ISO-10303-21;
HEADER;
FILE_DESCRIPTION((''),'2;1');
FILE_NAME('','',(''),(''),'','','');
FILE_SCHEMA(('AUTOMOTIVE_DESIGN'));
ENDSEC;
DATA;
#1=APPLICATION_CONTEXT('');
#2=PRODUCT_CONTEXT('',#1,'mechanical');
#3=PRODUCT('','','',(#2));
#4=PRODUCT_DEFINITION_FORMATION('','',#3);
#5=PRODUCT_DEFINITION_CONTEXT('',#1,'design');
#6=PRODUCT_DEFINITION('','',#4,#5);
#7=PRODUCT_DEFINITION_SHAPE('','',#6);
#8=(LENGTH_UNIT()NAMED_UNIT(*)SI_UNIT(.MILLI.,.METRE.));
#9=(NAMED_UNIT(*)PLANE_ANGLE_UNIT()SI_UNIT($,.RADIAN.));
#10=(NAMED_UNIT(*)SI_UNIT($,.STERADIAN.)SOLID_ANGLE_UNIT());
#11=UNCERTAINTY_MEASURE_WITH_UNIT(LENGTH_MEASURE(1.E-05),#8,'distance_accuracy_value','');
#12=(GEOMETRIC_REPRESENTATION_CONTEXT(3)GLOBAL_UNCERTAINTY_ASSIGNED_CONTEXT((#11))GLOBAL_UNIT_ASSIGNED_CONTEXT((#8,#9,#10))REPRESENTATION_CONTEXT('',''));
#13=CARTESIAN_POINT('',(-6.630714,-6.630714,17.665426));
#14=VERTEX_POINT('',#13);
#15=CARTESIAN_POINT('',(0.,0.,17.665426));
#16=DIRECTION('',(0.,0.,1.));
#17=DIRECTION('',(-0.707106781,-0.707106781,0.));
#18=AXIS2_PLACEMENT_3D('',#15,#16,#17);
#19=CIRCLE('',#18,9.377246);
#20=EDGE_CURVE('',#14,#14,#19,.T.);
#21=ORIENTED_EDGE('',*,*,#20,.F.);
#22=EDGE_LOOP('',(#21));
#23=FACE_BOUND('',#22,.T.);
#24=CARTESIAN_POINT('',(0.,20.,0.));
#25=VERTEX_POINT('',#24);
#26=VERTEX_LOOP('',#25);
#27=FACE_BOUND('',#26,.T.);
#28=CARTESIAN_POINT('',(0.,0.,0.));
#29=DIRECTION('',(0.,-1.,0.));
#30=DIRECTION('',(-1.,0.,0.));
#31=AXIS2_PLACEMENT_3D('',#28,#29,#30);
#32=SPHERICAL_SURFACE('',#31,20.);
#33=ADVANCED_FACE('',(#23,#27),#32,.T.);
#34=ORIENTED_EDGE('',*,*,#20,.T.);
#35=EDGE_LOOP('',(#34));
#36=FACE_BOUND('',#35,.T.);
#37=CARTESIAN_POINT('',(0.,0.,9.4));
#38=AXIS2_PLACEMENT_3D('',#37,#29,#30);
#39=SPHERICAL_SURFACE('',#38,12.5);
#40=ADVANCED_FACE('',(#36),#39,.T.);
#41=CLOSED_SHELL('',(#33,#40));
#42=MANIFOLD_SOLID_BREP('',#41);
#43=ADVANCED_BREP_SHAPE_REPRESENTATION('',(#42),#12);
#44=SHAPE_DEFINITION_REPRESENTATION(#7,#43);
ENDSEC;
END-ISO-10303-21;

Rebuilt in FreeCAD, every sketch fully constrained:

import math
import FreeCAD as App
import Part
import Sketcher
from FreeCAD import Vector
Q = App.Units.Quantity

doc = App.newDocument("Part")
body = doc.addObject("PartDesign::Body", "Body")

# Sketch on XY plane
sketch1 = body.newObject("Sketcher::SketchObject", "Sketch")
sketch1.AttachmentSupport = (doc.getObject("XY_Plane"), [""])
sketch1.MapMode = "FlatFace"
sketch1.addGeometry(Part.LineSegment(Vector(0, -20, 0), Vector(0, 20, 0)), False)
sketch1.addGeometry(Part.ArcOfCircle(Part.Circle(Vector(0, 0, 0), Vector(0, 0, 1), 20), math.radians(90), math.radians(270)), False)
sketch1.addConstraint(Sketcher.Constraint("Coincident", 0, 1, 1, 2))
sketch1.addConstraint(Sketcher.Constraint("Coincident", 1, 1, 0, 2))
sketch1.addConstraint(Sketcher.Constraint("Vertical", 0))
sketch1.addConstraint(Sketcher.Constraint("Coincident", 1, 3, -1, 1))
sketch1.addConstraint(Sketcher.Constraint("PointOnObject", 0, 1, -2))
sketch1.addConstraint(Sketcher.Constraint("Radius", 1, Q("20 mm")))
revolution = body.newObject("PartDesign::Revolution", "Revolution")
revolution.Profile = sketch1
revolution.ReferenceAxis = (sketch1, ["V_Axis"])
revolution.Angle = 360

# Sketch on XY plane
sketch2 = body.newObject("Sketcher::SketchObject", "Sketch001")
sketch2.AttachmentSupport = (doc.getObject("XY_Plane"), [""])
sketch2.MapMode = "FlatFace"
sketch2.AttachmentOffset = App.Placement(Vector(0, 0, 9.4), App.Rotation())
sketch2.addGeometry(Part.LineSegment(Vector(0, -12, 0), Vector(0, 12, 0)), False)
sketch2.addGeometry(Part.ArcOfCircle(Part.Circle(Vector(0, 0, 0), Vector(0, 0, 1), 12), math.radians(90), math.radians(270)), False)
sketch2.addConstraint(Sketcher.Constraint("Coincident", 0, 1, 1, 2))
sketch2.addConstraint(Sketcher.Constraint("Coincident", 1, 1, 0, 2))
sketch2.addConstraint(Sketcher.Constraint("Vertical", 0))
sketch2.addConstraint(Sketcher.Constraint("Coincident", 1, 3, -1, 1))
sketch2.addConstraint(Sketcher.Constraint("PointOnObject", 0, 1, -2))
sketch2.addConstraint(Sketcher.Constraint("Radius", 1, Q("12.5 mm")))
revolution2 = body.newObject("PartDesign::Revolution", "Revolution001")
revolution2.Profile = sketch2
revolution2.ReferenceAxis = (sketch2, ["V_Axis"])
revolution2.Angle = 360

doc.recompute()
